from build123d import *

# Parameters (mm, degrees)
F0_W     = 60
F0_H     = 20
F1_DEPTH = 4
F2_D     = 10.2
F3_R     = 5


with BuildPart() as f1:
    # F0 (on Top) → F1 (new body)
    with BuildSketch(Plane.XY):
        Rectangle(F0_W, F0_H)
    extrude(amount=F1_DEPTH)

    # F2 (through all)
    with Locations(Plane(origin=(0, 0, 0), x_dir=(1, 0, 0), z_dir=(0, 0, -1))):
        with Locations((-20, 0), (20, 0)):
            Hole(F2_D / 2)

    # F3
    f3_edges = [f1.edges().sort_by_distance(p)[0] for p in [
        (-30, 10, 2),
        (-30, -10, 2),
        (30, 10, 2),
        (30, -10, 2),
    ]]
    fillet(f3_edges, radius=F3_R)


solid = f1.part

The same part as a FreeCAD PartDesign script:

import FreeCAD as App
import Part
import Sketcher
from FreeCAD import Vector
Q = App.Units.Quantity


def edges_at(feature, points):
    """Names of the edges that pass closest to the given points."""
    edges = feature.Shape.Edges
    near = lambda p: min(range(len(edges)), key=lambda i: edges[i].distToShape(Part.Vertex(*p))[0])
    return sorted({f"Edge{near(p) + 1}" for p in points})


def add_polygon(sketch, points):
    """Adds a closed chain of lines whose ends are joined by coincident constraints."""
    first, n = sketch.GeometryCount, len(points)
    for a, b in zip(points, points[1:] + points[:1]):
        sketch.addGeometry(Part.LineSegment(App.Vector(*a, 0), App.Vector(*b, 0)), False)
    for i in range(n):
        sketch.addConstraint(Sketcher.Constraint("Coincident", first + i, 2, first + (i + 1) % n, 1))

doc = App.newDocument("Part")
body = doc.addObject("PartDesign::Body", "Body")

sketch1 = doc.addObject("Sketcher::SketchObject", "Sketch")
body.addObject(sketch1)
sketch1.AttachmentSupport = (doc.XY_Plane, [""])
sketch1.MapMode = "FlatFace"
add_polygon(sketch1, [(-30, 10), (-30, -10), (30, -10), (30, 10)])
sketch1.addConstraint([
    Sketcher.Constraint("Vertical", 0),
    Sketcher.Constraint("Horizontal", 1),
    Sketcher.Constraint("Vertical", 2),
    Sketcher.Constraint("Horizontal", 3),
    Sketcher.Constraint("Symmetric", 0, 2, 2, 2, -1, 1),
    Sketcher.Constraint("DistanceX", 1, 1, 1, 2, Q("60 mm")),
    Sketcher.Constraint("DistanceY", 0, 2, 0, 1, Q("20 mm")),
])
pad1 = doc.addObject("PartDesign::Pad", "Pad")
body.addObject(pad1)
pad1.Profile = sketch1
pad1.Length = 4

sketch2 = doc.addObject("Sketcher::SketchObject", "Sketch001")
body.addObject(sketch2)
sketch2.AttachmentSupport = (doc.XY_Plane, [""])
sketch2.MapMode = "FlatFace"
sketch2.addGeometry([
    Part.Circle(Vector(-20, 0, 0), Vector(0, 0, 1), 5),
    Part.Circle(Vector(20, 0, 0), Vector(0, 0, 1), 5),
], False)
sketch2.addConstraint([
    Sketcher.Constraint("Equal", 0, 1),
    Sketcher.Constraint("Symmetric", 0, 3, 1, 3, -1, 1),
    Sketcher.Constraint("PointOnObject", 0, 3, -1),
    Sketcher.Constraint("Diameter", 0, Q("10.2 mm")),
    Sketcher.Constraint("DistanceX", 0, 3, -1, 1, Q("20 mm")),
])
doc.recompute()
hole = doc.addObject("PartDesign::Hole", "Hole")
body.addObject(hole)
hole.Profile = sketch2
hole.ThreadType = "None"
hole.Diameter = 10.2
hole.DepthType = "ThroughAll"
hole.Reversed = True
doc.recompute()

fillet = doc.addObject("PartDesign::Fillet", "Fillet")
body.addObject(fillet)
fillet.Base = (hole, edges_at(hole, [
    (-30, 10, 2),
    (-30, -10, 2),
    (30, 10, 2),
    (30, -10, 2),
]))
fillet.Radius = 5

doc.recompute()
